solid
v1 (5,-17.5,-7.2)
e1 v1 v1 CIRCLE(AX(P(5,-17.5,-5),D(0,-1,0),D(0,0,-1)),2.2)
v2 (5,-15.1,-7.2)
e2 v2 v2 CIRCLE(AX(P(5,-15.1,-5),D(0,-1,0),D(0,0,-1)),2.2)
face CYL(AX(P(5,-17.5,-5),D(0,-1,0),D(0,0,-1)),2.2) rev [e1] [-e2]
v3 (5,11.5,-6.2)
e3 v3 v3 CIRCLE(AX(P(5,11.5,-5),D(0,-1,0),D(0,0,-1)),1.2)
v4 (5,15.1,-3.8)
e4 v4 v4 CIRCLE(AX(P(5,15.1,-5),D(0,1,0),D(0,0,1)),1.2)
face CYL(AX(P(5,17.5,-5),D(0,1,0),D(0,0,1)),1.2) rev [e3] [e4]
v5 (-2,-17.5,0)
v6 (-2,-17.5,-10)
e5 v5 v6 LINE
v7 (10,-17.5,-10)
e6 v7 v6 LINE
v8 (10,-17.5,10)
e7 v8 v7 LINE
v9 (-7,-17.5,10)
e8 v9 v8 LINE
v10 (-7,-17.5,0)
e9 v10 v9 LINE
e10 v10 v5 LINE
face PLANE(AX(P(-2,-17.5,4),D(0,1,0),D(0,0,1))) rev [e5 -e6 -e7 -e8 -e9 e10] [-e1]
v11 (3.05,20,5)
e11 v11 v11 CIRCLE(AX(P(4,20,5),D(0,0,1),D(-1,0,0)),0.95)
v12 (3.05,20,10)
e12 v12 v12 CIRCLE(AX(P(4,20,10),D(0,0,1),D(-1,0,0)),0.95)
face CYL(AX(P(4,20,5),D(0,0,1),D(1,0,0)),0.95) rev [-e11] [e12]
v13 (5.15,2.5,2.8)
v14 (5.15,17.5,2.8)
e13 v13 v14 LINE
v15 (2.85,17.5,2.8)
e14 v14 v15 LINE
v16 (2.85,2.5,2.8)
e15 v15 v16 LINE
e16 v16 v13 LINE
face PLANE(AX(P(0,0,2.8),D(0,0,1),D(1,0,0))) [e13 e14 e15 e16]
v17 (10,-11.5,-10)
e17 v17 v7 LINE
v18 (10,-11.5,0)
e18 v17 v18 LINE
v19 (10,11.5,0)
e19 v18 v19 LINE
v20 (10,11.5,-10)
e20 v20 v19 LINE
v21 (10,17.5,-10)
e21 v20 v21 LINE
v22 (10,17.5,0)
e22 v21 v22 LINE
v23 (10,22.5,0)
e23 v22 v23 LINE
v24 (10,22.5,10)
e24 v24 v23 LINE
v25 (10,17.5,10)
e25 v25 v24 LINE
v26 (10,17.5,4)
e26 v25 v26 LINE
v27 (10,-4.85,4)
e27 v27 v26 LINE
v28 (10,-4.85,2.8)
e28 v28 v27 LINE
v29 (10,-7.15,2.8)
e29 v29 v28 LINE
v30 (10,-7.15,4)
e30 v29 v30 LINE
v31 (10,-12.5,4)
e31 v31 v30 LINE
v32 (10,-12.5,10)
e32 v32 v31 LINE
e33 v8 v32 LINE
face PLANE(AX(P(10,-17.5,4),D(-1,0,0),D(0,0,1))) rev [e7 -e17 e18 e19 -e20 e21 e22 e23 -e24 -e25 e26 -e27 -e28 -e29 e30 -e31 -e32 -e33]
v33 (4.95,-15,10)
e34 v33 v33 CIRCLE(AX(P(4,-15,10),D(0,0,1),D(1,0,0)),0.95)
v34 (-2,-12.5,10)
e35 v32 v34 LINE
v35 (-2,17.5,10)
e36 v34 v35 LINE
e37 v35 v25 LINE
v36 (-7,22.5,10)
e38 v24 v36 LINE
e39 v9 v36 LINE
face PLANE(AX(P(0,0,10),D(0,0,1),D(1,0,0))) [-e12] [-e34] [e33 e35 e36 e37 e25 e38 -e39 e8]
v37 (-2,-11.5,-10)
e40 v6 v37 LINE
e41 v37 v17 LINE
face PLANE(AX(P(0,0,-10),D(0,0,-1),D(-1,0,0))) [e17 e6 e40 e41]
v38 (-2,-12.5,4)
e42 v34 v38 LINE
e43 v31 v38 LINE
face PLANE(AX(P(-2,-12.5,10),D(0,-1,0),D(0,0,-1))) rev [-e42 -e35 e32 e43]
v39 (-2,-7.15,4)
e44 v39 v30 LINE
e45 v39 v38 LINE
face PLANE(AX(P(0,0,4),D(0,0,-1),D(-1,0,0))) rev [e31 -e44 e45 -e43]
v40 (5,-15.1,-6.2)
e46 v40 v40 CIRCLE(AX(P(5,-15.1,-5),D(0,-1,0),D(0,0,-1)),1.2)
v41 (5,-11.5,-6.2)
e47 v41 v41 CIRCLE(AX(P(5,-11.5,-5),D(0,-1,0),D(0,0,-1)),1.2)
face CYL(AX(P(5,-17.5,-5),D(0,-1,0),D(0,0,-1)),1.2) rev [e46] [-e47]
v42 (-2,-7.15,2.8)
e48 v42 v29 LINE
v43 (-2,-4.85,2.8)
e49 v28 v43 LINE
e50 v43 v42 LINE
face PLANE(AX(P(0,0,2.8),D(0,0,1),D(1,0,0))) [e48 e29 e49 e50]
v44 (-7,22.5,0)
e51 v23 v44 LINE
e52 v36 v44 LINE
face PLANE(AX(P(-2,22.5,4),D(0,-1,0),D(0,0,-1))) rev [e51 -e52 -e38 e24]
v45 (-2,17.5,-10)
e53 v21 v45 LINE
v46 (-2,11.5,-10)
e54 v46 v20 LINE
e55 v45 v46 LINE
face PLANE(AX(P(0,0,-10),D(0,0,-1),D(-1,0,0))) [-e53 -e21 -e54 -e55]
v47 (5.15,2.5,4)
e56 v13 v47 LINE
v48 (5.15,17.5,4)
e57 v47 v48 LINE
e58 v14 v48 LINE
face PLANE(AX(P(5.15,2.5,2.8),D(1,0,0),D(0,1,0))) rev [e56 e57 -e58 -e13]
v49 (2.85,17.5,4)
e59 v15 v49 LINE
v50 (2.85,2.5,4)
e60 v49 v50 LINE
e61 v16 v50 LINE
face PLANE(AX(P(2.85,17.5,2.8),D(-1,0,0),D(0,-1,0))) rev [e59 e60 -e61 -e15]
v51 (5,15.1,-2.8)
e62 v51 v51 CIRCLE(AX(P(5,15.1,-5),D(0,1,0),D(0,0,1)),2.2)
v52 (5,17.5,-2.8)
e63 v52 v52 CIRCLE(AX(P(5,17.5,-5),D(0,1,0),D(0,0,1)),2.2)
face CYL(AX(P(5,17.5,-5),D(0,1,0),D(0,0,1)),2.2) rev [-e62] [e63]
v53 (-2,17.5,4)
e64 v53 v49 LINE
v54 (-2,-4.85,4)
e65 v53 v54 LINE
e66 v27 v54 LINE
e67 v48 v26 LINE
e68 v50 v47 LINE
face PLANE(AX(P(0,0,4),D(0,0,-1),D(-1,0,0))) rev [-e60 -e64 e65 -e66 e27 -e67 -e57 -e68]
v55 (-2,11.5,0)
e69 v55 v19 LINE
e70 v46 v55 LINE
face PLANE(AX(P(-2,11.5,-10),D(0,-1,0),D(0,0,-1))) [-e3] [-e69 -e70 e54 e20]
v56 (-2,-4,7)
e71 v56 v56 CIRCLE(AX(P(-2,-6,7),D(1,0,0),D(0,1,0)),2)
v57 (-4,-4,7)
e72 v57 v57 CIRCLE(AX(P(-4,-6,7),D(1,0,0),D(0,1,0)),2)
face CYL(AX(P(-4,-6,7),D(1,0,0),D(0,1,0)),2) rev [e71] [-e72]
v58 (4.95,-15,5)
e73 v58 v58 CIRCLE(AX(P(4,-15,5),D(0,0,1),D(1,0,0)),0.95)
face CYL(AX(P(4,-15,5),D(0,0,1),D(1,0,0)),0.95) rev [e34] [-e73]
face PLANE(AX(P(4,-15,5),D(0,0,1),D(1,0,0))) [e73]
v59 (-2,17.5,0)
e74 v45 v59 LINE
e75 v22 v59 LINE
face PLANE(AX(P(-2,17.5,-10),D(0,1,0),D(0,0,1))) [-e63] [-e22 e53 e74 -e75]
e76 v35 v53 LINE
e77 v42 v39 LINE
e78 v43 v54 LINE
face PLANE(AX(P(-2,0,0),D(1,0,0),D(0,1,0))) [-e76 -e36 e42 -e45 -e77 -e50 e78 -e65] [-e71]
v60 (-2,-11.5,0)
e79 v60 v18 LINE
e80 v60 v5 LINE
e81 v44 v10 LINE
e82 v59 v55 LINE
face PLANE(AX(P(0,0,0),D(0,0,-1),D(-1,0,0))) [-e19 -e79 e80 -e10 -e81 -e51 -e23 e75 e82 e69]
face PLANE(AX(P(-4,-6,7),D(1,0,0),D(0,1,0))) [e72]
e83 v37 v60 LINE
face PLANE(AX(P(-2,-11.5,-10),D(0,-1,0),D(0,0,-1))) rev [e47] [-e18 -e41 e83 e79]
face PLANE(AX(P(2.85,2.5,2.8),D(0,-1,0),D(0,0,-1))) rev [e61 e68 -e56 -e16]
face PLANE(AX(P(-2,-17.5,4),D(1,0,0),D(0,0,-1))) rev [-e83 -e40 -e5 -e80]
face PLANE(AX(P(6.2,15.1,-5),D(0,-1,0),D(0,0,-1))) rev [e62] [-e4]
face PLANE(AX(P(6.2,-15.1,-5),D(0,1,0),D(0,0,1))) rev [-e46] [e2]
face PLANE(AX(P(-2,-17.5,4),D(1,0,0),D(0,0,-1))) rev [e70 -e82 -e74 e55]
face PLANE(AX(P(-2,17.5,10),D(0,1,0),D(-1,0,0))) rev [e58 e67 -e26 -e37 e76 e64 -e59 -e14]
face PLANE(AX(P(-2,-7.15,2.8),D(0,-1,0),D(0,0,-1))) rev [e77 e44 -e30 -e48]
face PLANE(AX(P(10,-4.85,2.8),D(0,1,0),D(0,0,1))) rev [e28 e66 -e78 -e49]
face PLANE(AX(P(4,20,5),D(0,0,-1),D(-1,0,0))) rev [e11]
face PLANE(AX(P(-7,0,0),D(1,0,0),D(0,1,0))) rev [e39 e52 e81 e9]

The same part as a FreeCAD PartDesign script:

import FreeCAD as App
import Part
import Sketcher
Q = App.Units.Quantity


def add_polygon(sketch, points):
    """Adds a closed chain of lines whose ends are joined by coincident constraints."""
    first, n = sketch.GeometryCount, len(points)
    for a, b in zip(points, points[1:] + points[:1]):
        sketch.addGeometry(Part.LineSegment(App.Vector(*a, 0), App.Vector(*b, 0)), False)
    for i in range(n):
        sketch.addConstraint(Sketcher.Constraint("Coincident", first + i, 2, first + (i + 1) % n, 1))

doc = App.newDocument("Part")
body = doc.addObject("PartDesign::Body", "Body")

sketch1 = body.newObject("Sketcher::SketchObject", "Sketch")
sketch1.AttachmentSupport = (doc.getObject("XY_Plane"), [""])
sketch1.MapMode = "FlatFace"
add_polygon(sketch1, [(-2, 22), (-2, -18), (10, -18), (10, 22)])
sketch1.addConstraint([
    Sketcher.Constraint("Vertical", 0),
    Sketcher.Constraint("Horizontal", 1),
    Sketcher.Constraint("Vertical", 2),
    Sketcher.Constraint("Horizontal", 3),
    Sketcher.Constraint("DistanceX", 1, 1, 1, 2, Q("12 mm")),
    Sketcher.Constraint("DistanceY", 0, 2, 0, 1, Q("40 mm")),
    Sketcher.Constraint("DistanceX", 0, 2, -1, 1, Q("2 mm")),
    Sketcher.Constraint("DistanceY", 0, 2, -1, 1, Q("17.5 mm")),
])
pad1 = body.newObject("PartDesign::Pad", "Pad")
pad1.Profile = sketch1
pad1.Length = 4

sketch2 = body.newObject("Sketcher::SketchObject", "Sketch001")
sketch2.AttachmentSupport = (doc.getObject("XY_Plane"), [""])
sketch2.MapMode = "FlatFace"
add_polygon(sketch2, [(10, -12), (10, -18), (-2, -18), (-2, -12)])
sketch2.addConstraint([
    Sketcher.Constraint("Vertical", 0),
    Sketcher.Constraint("Horizontal", 1),
    Sketcher.Constraint("Vertical", 2),
    Sketcher.Constraint("Horizontal", 3),
    Sketcher.Constraint("DistanceX", 1, 2, 1, 1, Q("12 mm")),
    Sketcher.Constraint("DistanceY", 0, 2, 0, 1, Q("6 mm")),
    Sketcher.Constraint("DistanceX", -1, 1, 0, 2, Q("10 mm")),
    Sketcher.Constraint("DistanceY", 0, 2, -1, 1, Q("17.5 mm")),
])
pad2 = body.newObject("PartDesign::Pad", "Pad001")
pad2.Profile = sketch2
pad2.Length = 10
pad2.Reversed = True
doc.recompute()

mirrored = body.newObject("PartDesign::Mirrored", "Mirrored")
mirrored.Originals = [pad2]
mirrored.MirrorPlane = (doc.getObject("XZ_Plane"), [""])
body.Tip = mirrored

sketch3 = body.newObject("Sketcher::SketchObject", "Sketch002")
sketch3.AttachmentSupport = (doc.getObject("XY_Plane"), [""])
sketch3.MapMode = "FlatFace"
sketch3.AttachmentOffset = App.Placement(App.Vector(0, 0, 4), App.Rotation())
add_polygon(sketch3, [(-2, 22), (-2, 18), (10, 18), (10, 22)])
add_polygon(sketch3, [(-2, -12), (-2, -18), (10, -18), (10, -12)])
sketch3.addConstraint([
    Sketcher.Constraint("Vertical", 0),
    Sketcher.Constraint("Horizontal", 1),
    Sketcher.Constraint("Vertical", 2),
    Sketcher.Constraint("Horizontal", 3),
    Sketcher.Constraint("Vertical", 4),
    Sketcher.Constraint("Horizontal", 5),
    Sketcher.Constraint("Vertical", 6),
    Sketcher.Constraint("Horizontal", 7),
    Sketcher.Constraint("Symmetric", 0, 2, 4, 2, -1),
    Sketcher.Constraint("Vertical", 2, 2, 5, 2),
    Sketcher.Constraint("Equal", 2, 4),
    Sketcher.Constraint("DistanceX", 1, 1, 1, 2, Q("12 mm")),
    Sketcher.Constraint("DistanceY", 0, 2, 0, 1, Q("5 mm")),
    Sketcher.Constraint("DistanceX", 0, 2, -1, 1, Q("2 mm")),
    Sketcher.Constraint("DistanceY", 4, 2, 0, 2, Q("35 mm")),
])
pad3 = body.newObject("PartDesign::Pad", "Pad002")
pad3.Profile = sketch3
pad3.Length = 6

sketch4 = body.newObject("Sketcher::SketchObject", "Sketch003")
sketch4.AttachmentSupport = (doc.getObject("XY_Plane"), [""])
sketch4.MapMode = "FlatFace"
sketch4.AttachmentOffset = App.Placement(App.Vector(0, 0, 10), App.Rotation())
sketch4.addGeometry([
    Part.Circle(App.Vector(4, -15, 0), App.Vector(0, 0, 1), 0.9),
    Part.Circle(App.Vector(4, 20, 0), App.Vector(0, 0, 1), 0.9),
], False)
sketch4.addConstraint([
    Sketcher.Constraint("Equal", 0, 1),
    Sketcher.Constraint("Vertical", 0, 3, 1, 3),
    Sketcher.Constraint("Diameter", 0, Q("1.9 mm")),
    Sketcher.Constraint("DistanceX", -1, 1, 0, 3, Q("4 mm")),
    Sketcher.Constraint("DistanceY", 0, 3, -1, 1, Q("15 mm")),
    Sketcher.Constraint("DistanceY", -1, 1, 1, 3, Q("20 mm")),
])
pocket1 = body.newObject("PartDesign::Pocket", "Pocket")
pocket1.Profile = sketch4
pocket1.Length = 5

sketch5 = body.newObject("Sketcher::SketchObject", "Sketch004")
sketch5.AttachmentSupport = (doc.getObject("YZ_Plane"), [""])
sketch5.MapMode = "FlatFace"
sketch5.AttachmentOffset = App.Placement(App.Vector(0, 0, -2), App.Rotation())
add_polygon(sketch5, [(22, 0), (-18, 0), (-18, 10), (22, 10)])
sketch5.addConstraint([
    Sketcher.Constraint("Horizontal", 0),
    Sketcher.Constraint("Vertical", 1),
    Sketcher.Constraint("Horizontal", 2),
    Sketcher.Constraint("Vertical", 3),
    Sketcher.Constraint("PointOnObject", 0, 2, -1),
    Sketcher.Constraint("DistanceX", 0, 2, 0, 1, Q("40 mm")),
    Sketcher.Constraint("DistanceY", 1, 1, 1, 2, Q("10 mm")),
    Sketcher.Constraint("DistanceX", 0, 2, -1, 1, Q("17.5 mm")),
])
pad4 = body.newObject("PartDesign::Pad", "Pad003")
pad4.Profile = sketch5
pad4.Length = 5
pad4.Reversed = True

sketch6 = body.newObject("Sketcher::SketchObject", "Sketch005")
sketch6.AttachmentSupport = (doc.getObject("YZ_Plane"), [""])
sketch6.MapMode = "FlatFace"
sketch6.AttachmentOffset = App.Placement(App.Vector(0, 0, -2), App.Rotation())
sketch6.addGeometry(Part.Circle(App.Vector(-6, 7, 0), App.Vector(0, 0, 1), 2), False)
sketch6.addConstraint([
    Sketcher.Constraint("Diameter", 0, Q("4 mm")),
    Sketcher.Constraint("DistanceX", 0, 3, -1, 1, Q("6 mm")),
    Sketcher.Constraint("DistanceY", -1, 1, 0, 3, Q("7 mm")),
])
pocket2 = body.newObject("PartDesign::Pocket", "Pocket001")
pocket2.Profile = sketch6
pocket2.Length = 2

sketch7 = body.newObject("Sketcher::SketchObject", "Sketch006")
sketch7.AttachmentSupport = (doc.getObject("XZ_Plane"), [""])
sketch7.MapMode = "FlatFace"
sketch7.AttachmentOffset = App.Placement(App.Vector(0, 0, 17.5), App.Rotation())
sketch7.addGeometry(Part.Circle(App.Vector(5, -5, 0), App.Vector(0, 0, 1), 1.2), False)
sketch7.addConstraint([
    Sketcher.Constraint("Diameter", 0, Q("2.4 mm")),
    Sketcher.Constraint("DistanceX", -1, 1, 0, 3, Q("5 mm")),
    Sketcher.Constraint("DistanceY", 0, 3, -1, 1, Q("5 mm")),
])
doc.recompute()
hole = body.newObject("PartDesign::Hole", "Hole")
hole.Profile = sketch7
hole.ThreadType = "None"
hole.Diameter = 2.4
hole.DepthType = "Dimension"
hole.Depth = 6
hole.DrillPoint = "Flat"
hole.HoleCutType = "Counterbore"
hole.HoleCutDiameter = 4.4
hole.HoleCutDepth = 2.4
doc.recompute()

mirrored2 = body.newObject("PartDesign::Mirrored", "Mirrored001")
mirrored2.Originals = [hole]
mirrored2.MirrorPlane = (doc.getObject("XZ_Plane"), [""])
body.Tip = mirrored2

sketch8 = body.newObject("Sketcher::SketchObject", "Sketch007")
sketch8.AttachmentSupport = (doc.getObject("XY_Plane"), [""])
sketch8.MapMode = "FlatFace"
sketch8.AttachmentOffset = App.Placement(App.Vector(0, 0, 4), App.Rotation())
add_polygon(sketch8, [(-2, -4.8), (-2, -7.2), (10, -7.2), (10, -4.8)])
add_polygon(sketch8, [(2.9, 17.5), (2.9, 2.5), (5.2, 2.5), (5.2, 17.5)])
sketch8.addConstraint([
    Sketcher.Constraint("Vertical", 0),
    Sketcher.Constraint("Horizontal", 1),
    Sketcher.Constraint("Vertical", 2),
    Sketcher.Constraint("Horizontal", 3),
    Sketcher.Constraint("Vertical", 4),
    Sketcher.Constraint("Horizontal", 5),
    Sketcher.Constraint("Vertical", 6),
    Sketcher.Constraint("Horizontal", 7),
    Sketcher.Constraint("Equal", 7, 0),
    Sketcher.Constraint("DistanceX", 1, 1, 1, 2, Q("12 mm")),
    Sketcher.Constraint("DistanceY", 4, 2, 4, 1, Q("15 mm")),
    Sketcher.Constraint("DistanceX", 5, 1, 5, 2, Q("2.3 mm")),
    Sketcher.Constraint("DistanceX", 0, 2, -1, 1, Q("2 mm")),
    Sketcher.Constraint("DistanceY", -1, 1, 4, 2, Q("2.5 mm")),
    Sketcher.Constraint("DistanceY", 0, 2, -1, 1, Q("7.15 mm")),
    Sketcher.Constraint("DistanceX", -1, 1, 4, 2, Q("2.85 mm")),
])
pocket3 = body.newObject("PartDesign::Pocket", "Pocket002")
pocket3.Profile = sketch8
pocket3.Length = 1.2

doc.recompute()
